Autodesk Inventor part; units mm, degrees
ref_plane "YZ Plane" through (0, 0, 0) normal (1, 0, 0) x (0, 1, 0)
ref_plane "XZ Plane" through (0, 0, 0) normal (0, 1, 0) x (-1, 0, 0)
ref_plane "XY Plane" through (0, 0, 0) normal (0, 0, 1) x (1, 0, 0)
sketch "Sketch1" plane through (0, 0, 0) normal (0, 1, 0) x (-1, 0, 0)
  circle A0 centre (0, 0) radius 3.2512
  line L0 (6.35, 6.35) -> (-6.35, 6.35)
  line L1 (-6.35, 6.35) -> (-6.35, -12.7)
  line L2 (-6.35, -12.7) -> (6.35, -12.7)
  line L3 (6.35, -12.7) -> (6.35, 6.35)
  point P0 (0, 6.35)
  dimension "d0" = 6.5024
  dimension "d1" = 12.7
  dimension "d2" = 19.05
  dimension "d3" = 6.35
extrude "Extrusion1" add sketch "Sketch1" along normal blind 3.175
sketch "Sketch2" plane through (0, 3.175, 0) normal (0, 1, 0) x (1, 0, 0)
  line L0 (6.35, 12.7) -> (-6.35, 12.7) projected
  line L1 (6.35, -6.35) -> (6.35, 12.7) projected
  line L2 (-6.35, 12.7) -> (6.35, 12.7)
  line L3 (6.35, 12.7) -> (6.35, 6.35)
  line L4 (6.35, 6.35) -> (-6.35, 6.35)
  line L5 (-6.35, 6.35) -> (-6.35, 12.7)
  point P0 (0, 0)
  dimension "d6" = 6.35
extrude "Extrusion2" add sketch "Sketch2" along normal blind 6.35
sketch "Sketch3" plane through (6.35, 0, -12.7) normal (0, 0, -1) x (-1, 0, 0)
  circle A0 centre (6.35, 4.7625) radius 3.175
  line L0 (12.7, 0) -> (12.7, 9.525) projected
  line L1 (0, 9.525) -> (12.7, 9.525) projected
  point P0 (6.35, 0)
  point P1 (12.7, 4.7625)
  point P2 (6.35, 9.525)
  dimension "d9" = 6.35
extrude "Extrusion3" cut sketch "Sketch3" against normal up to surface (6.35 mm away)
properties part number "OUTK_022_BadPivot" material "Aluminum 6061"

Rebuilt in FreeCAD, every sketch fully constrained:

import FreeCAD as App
import Part
import Sketcher

V = App.Vector
Q = App.Units.Quantity


def add_polygon(sketch, points):
    """Adds a closed chain of lines whose ends are joined by coincident constraints."""
    first, n = sketch.GeometryCount, len(points)
    for a, b in zip(points, points[1:] + points[:1]):
        sketch.addGeometry(Part.LineSegment(App.Vector(*a, 0), App.Vector(*b, 0)), False)
    for i in range(n):
        sketch.addConstraint(Sketcher.Constraint("Coincident", first + i, 2, first + (i + 1) % n, 1))

doc = App.newDocument("Part")
params = doc.addObject("Spreadsheet::Sheet", "Params")
for row, (alias, value) in enumerate([
    ("sketch1_diameter", "0.256 in"),
    ("sketch1_width", "0.5 in"),
    ("sketch1_height", "0.75 in"),
    ("pad1_length", "0.125 in"),
    ("sketch2_height", "0.25 in"),
    ("pad2_length", "0.25 in"),
    ("sketch3_diameter", "0.25 in"),
    ("pocket1_length", "0.25 in"),
], start=1):
    params.set(f"A{row}", alias)
    params.set(f"B{row}", "=" + value)
    params.setAlias(f"B{row}", alias)

body = doc.addObject("PartDesign::Body", "Body")

# Sketch on XZ plane
sketch1 = doc.addObject("Sketcher::SketchObject", "Sketch")
body.addObject(sketch1)
sketch1.AttachmentSupport = (doc.XZ_Plane, [""])
sketch1.MapMode = "FlatFace"
add_polygon(sketch1, [(-6.3, -12.7), (-6.3, 6.3), (6.3, 6.3), (6.3, -12.7)])  # lines 0-3
sketch1.addGeometry(Part.Circle(V(0, 0, 0), V(0, 0, 1), 3.3), False)  # 4
sketch1.addConstraint([
    Sketcher.Constraint("Vertical", 0),
    Sketcher.Constraint("Horizontal", 1),
    Sketcher.Constraint("Vertical", 2),
    Sketcher.Constraint("Horizontal", 3),
    Sketcher.Constraint("Coincident", 4, 3, -1, 1),
    Sketcher.Constraint("Diameter", 4, Q("0.256 in")),
    Sketcher.Constraint("DistanceX", 1, 1, 1, 2, Q("0.5 in")),
    Sketcher.Constraint("DistanceY", 0, 1, 0, 2, Q("0.75 in")),
    Sketcher.Constraint("DistanceY", 2, 2, -1, 1, Q("0.5 in")),
    Sketcher.Constraint("DistanceX", 0, 2, -1, 1, Q("0.25 in")),
])
sketch1.setExpression("Constraints[9]", "Params.sketch1_diameter")
sketch1.setExpression("Constraints[10]", "Params.sketch1_width")
sketch1.setExpression("Constraints[11]", "Params.sketch1_height")
pad1 = doc.addObject("PartDesign::Pad", "Pad")
body.addObject(pad1)
pad1.Profile = sketch1
pad1.setExpression("Length", "Params.pad1_length")
pad1.Reversed = True

# Sketch on XZ plane
sketch2 = doc.addObject("Sketcher::SketchObject", "Sketch001")
body.addObject(sketch2)
sketch2.AttachmentSupport = (doc.XZ_Plane, [""])
sketch2.MapMode = "FlatFace"
sketch2.AttachmentOffset = App.Placement(V(0, 0, -0.125 * 25.4), App.Rotation())
add_polygon(sketch2, [(6, -6), (6, -13), (-6, -13), (-6, -6)])  # lines 0-3
sketch2.addConstraint([
    Sketcher.Constraint("Vertical", 0),
    Sketcher.Constraint("Horizontal", 1),
    Sketcher.Constraint("Vertical", 2),
    Sketcher.Constraint("Horizontal", 3),
    Sketcher.Constraint("DistanceY", 0, 2, 0, 1, Q("0.25 in")),
    Sketcher.Constraint("DistanceX", -1, 1, 0, 2, Q("0.25 in")),
    Sketcher.Constraint("DistanceX", 1, 2, -1, 1, Q("0.25 in")),
    Sketcher.Constraint("DistanceY", 2, 2, -1, 1, Q("0.25 in")),
])
sketch2.setExpression("Constraints[8]", "Params.sketch2_height")
pad2 = doc.addObject("PartDesign::Pad", "Pad001")
body.addObject(pad2)
pad2.Profile = sketch2
pad2.setExpression("Length", "Params.pad2_length")
pad2.Reversed = True

# Sketch on XY plane
sketch3 = doc.addObject("Sketcher::SketchObject", "Sketch002")
body.addObject(sketch3)
sketch3.AttachmentSupport = (doc.XY_Plane, [""])
sketch3.MapMode = "FlatFace"
sketch3.AttachmentOffset = App.Placement(V(0, 0, -0.5 * 25.4), App.Rotation())
sketch3.addGeometry(Part.Circle(V(0, 4.8, 0), V(0, 0, 1), 3.2), False)
sketch3.addConstraint([
    Sketcher.Constraint("PointOnObject", 0, 3, -2),
    Sketcher.Constraint("Diameter", 0, Q("0.25 in")),
    Sketcher.Constraint("DistanceY", -1, 1, 0, 3, Q("0.1875 in")),
])
sketch3.setExpression("Constraints[1]", "Params.sketch3_diameter")
pocket1 = doc.addObject("PartDesign::Pocket", "Pocket")
body.addObject(pocket1)
pocket1.Profile = sketch3
pocket1.setExpression("Length", "Params.pocket1_length")
pocket1.Reversed = True

doc.recompute()
